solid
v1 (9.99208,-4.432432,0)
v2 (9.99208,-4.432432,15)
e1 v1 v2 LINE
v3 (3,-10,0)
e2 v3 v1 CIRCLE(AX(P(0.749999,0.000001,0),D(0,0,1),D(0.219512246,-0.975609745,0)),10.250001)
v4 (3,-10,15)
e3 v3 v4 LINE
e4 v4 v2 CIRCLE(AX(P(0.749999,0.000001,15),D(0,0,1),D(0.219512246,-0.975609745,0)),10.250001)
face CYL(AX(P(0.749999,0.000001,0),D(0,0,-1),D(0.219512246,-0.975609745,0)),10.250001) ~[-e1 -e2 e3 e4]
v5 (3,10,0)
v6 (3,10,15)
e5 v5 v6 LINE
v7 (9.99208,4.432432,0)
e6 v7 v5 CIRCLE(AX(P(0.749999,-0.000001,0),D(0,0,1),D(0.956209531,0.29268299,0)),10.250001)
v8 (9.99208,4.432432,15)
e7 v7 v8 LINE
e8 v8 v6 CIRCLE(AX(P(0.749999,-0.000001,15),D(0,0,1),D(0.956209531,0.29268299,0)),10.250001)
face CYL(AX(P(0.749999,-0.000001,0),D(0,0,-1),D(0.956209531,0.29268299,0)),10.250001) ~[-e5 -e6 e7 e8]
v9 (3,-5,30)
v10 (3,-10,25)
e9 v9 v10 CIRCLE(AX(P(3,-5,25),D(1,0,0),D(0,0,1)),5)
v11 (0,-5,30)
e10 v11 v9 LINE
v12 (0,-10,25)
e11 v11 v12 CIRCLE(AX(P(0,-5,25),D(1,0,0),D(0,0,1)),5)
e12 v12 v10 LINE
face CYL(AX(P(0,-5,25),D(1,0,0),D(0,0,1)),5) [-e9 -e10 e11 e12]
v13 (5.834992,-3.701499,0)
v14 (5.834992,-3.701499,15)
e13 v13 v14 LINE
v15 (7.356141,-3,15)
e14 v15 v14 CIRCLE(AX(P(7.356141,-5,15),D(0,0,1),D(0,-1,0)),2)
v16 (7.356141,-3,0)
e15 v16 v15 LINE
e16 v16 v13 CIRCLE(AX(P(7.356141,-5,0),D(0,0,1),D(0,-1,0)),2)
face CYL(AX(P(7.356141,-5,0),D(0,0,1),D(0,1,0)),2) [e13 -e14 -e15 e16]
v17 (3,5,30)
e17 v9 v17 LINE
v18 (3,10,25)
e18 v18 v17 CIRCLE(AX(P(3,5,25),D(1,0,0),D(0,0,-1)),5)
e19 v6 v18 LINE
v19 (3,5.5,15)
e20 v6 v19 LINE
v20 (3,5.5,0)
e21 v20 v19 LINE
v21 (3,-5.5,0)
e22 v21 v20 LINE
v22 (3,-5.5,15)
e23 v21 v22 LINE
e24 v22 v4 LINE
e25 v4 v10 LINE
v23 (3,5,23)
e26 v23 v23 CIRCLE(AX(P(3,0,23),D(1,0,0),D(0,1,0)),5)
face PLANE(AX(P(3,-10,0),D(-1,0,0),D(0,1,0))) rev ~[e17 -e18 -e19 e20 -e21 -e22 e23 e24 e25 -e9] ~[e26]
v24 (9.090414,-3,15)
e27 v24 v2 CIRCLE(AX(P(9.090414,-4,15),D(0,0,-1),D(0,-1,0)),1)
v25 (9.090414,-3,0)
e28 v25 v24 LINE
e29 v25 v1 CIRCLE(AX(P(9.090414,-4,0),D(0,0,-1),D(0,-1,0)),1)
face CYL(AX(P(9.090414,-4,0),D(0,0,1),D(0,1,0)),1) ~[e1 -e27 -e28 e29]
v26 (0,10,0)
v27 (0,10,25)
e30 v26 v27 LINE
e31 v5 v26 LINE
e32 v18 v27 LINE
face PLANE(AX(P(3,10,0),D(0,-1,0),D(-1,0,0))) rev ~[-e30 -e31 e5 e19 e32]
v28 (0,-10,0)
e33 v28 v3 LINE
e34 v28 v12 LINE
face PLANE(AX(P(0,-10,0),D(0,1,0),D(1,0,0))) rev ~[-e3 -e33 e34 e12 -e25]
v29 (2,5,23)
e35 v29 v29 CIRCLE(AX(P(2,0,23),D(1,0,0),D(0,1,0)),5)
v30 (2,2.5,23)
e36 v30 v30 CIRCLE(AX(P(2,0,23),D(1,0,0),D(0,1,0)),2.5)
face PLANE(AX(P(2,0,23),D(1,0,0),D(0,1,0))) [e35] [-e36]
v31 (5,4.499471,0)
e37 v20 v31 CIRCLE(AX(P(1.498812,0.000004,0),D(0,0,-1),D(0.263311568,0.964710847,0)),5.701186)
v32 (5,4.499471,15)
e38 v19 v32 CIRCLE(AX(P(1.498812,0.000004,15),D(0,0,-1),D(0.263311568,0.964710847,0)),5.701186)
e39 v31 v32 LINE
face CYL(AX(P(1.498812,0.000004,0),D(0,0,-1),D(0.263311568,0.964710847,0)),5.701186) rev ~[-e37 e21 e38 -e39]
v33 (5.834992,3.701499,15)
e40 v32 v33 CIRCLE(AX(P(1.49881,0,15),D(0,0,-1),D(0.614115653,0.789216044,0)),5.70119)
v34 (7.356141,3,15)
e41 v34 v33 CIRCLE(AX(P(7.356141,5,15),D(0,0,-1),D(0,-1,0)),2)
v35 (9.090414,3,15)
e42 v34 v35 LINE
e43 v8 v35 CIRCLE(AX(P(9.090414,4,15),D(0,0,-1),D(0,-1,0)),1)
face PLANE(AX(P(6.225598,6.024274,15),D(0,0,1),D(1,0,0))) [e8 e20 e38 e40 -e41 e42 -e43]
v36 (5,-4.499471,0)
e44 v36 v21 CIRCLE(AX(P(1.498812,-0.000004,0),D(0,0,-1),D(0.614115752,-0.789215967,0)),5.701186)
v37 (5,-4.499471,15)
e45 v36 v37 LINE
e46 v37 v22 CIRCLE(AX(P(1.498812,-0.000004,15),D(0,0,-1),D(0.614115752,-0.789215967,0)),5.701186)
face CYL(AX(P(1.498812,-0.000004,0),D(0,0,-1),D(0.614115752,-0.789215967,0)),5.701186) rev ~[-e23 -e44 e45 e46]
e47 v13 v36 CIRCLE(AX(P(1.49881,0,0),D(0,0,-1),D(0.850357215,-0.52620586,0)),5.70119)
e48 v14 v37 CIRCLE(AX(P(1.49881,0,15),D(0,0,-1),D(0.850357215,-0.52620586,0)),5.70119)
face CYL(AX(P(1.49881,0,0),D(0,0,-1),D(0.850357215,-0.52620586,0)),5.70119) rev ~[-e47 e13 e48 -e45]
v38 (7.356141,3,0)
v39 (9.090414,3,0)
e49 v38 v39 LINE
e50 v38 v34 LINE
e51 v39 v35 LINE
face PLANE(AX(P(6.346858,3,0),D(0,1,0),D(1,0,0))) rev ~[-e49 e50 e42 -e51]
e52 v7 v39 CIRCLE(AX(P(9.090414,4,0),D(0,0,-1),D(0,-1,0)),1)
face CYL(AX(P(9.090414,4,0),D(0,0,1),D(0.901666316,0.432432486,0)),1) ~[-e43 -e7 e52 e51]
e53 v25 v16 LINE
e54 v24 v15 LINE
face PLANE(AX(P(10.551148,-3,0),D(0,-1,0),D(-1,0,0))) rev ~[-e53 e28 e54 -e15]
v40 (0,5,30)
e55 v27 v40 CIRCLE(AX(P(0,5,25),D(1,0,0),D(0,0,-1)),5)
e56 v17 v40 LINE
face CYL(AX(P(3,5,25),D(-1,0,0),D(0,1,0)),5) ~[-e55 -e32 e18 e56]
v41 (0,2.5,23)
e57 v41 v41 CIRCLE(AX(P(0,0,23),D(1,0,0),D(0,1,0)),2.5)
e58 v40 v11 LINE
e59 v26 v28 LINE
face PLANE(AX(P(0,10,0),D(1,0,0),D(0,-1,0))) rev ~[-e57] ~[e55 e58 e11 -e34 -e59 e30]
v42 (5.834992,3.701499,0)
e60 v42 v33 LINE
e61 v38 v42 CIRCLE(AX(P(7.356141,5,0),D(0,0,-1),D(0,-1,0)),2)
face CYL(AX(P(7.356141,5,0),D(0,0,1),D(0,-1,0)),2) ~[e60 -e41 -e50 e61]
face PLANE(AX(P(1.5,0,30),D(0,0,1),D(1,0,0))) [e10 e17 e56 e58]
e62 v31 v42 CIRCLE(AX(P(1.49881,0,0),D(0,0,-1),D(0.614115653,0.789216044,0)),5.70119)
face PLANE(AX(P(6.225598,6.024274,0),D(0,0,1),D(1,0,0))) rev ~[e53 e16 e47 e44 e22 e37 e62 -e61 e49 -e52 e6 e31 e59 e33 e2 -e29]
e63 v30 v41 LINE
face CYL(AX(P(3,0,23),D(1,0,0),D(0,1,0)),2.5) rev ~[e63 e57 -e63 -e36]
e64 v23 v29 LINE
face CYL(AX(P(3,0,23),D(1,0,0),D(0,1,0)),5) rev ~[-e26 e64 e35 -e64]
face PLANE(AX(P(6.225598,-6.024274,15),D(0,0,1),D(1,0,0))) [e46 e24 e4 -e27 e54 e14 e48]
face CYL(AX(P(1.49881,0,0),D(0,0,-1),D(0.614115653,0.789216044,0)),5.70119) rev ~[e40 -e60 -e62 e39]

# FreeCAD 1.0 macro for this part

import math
import FreeCAD as App
import Part
import Sketcher
from FreeCAD import Vector
Q = App.Units.Quantity


def edges_at(feature, points):
    """Names of the edges that pass closest to the given points."""
    edges = feature.Shape.Edges
    near = lambda p: min(range(len(edges)), key=lambda i: edges[i].distToShape(Part.Vertex(*p))[0])
    return sorted({f"Edge{near(p) + 1}" for p in points})


def add_polygon(sketch, points):
    """Adds a closed chain of lines whose ends are joined by coincident constraints."""
    first, n = sketch.GeometryCount, len(points)
    for a, b in zip(points, points[1:] + points[:1]):
        sketch.addGeometry(Part.LineSegment(App.Vector(*a, 0), App.Vector(*b, 0)), False)
    for i in range(n):
        sketch.addConstraint(Sketcher.Constraint("Coincident", first + i, 2, first + (i + 1) % n, 1))

doc = App.newDocument("Part")
body = doc.addObject("PartDesign::Body", "Body")

# Sketch on XY plane
sketch1 = body.newObject("Sketcher::SketchObject", "Sketch")
sketch1.AttachmentSupport = (doc.getObject("XY_Plane"), [""])
sketch1.MapMode = "FlatFace"
add_polygon(sketch1, [(3, 10), (0, 10), (0, -10), (3, -10)])  # lines 0-3
sketch1.addConstraint(Sketcher.Constraint("Horizontal", 0))
sketch1.addConstraint(Sketcher.Constraint("Vertical", 1))
sketch1.addConstraint(Sketcher.Constraint("Horizontal", 2))
sketch1.addConstraint(Sketcher.Constraint("Vertical", 3))
sketch1.addConstraint(Sketcher.Constraint("Symmetric", 0, 2, 1, 2, -1, 1))
sketch1.addConstraint(Sketcher.Constraint("DistanceX", 0, 2, 0, 1, Q("3 mm")))
sketch1.addConstraint(Sketcher.Constraint("DistanceY", 1, 2, 1, 1, Q("20 mm")))
pad1 = body.newObject("PartDesign::Pad", "Pad")
pad1.Profile = sketch1
pad1.Length = 30

# Sketch on XY plane
sketch2 = body.newObject("Sketcher::SketchObject", "Sketch001")
sketch2.AttachmentSupport = (doc.getObject("XY_Plane"), [""])
sketch2.MapMode = "FlatFace"
sketch2.addGeometry(Part.ArcOfCircle(Part.Circle(Vector(0.7, 0, 0), Vector(0, 0, 1), 10.3), math.radians(17), math.radians(77)), False)
sketch2.addGeometry(Part.LineSegment(Vector(3, 10, 0), Vector(3, 5.5, 0)), False)
sketch2.addGeometry(Part.ArcOfCircle(Part.Circle(Vector(1.5, 0, 0), Vector(0, 0, 1), 5.7), math.radians(52), math.radians(75)), False)
sketch2.addGeometry(Part.ArcOfCircle(Part.Circle(Vector(1.5, 0, 0), Vector(0, 0, 1), 5.7), math.radians(32), math.radians(52)), False)
sketch2.addGeometry(Part.LineSegment(Vector(6.3, 3, 0), Vector(10.6, 3, 0)), False)
sketch2.addGeometry(Part.LineSegment(Vector(3, -5.5, 0), Vector(3, -10, 0)), False)
sketch2.addGeometry(Part.ArcOfCircle(Part.Circle(Vector(0.7, 0, 0), Vector(0, 0, 1), 10.3), math.radians(-77), math.radians(-17)), False)
sketch2.addGeometry(Part.LineSegment(Vector(10.6, -3, 0), Vector(6.3, -3, 0)), False)
sketch2.addGeometry(Part.ArcOfCircle(Part.Circle(Vector(1.5, 0, 0), Vector(0, 0, 1), 5.7), math.radians(-52), math.radians(-32)), False)
sketch2.addGeometry(Part.ArcOfCircle(Part.Circle(Vector(1.5, 0, 0), Vector(0, 0, 1), 5.7), math.radians(-75), math.radians(-52)), False)
sketch2.addConstraint(Sketcher.Constraint("Coincident", 0, 2, 1, 1))
sketch2.addConstraint(Sketcher.Constraint("Coincident", 1, 2, 2, 2))
sketch2.addConstraint(Sketcher.Constraint("Tangent", 2, 1, 3, 2))
sketch2.addConstraint(Sketcher.Constraint("Coincident", 3, 1, 4, 1))
sketch2.addConstraint(Sketcher.Constraint("Coincident", 4, 2, 0, 1))
sketch2.addConstraint(Sketcher.Constraint("Coincident", 5, 2, 6, 1))
sketch2.addConstraint(Sketcher.Constraint("Coincident", 6, 2, 7, 1))
sketch2.addConstraint(Sketcher.Constraint("Coincident", 7, 2, 8, 2))
sketch2.addConstraint(Sketcher.Constraint("Tangent", 8, 1, 9, 2))
sketch2.addConstraint(Sketcher.Constraint("Coincident", 9, 1, 5, 1))
sketch2.addConstraint(Sketcher.Constraint("Vertical", 1))
sketch2.addConstraint(Sketcher.Constraint("Horizontal", 4))
sketch2.addConstraint(Sketcher.Constraint("Vertical", 5))
sketch2.addConstraint(Sketcher.Constraint("Horizontal", 7))
sketch2.addConstraint(Sketcher.Constraint("Coincident", 6, 3, 0, 3))
sketch2.addConstraint(Sketcher.Constraint("Coincident", 8, 3, 2, 3))
sketch2.addConstraint(Sketcher.Constraint("Equal", 0, 6))
sketch2.addConstraint(Sketcher.Constraint("Equal", 3, 8))
sketch2.addConstraint(Sketcher.Constraint("Equal", 2, 9))
sketch2.addConstraint(Sketcher.Constraint("Symmetric", 0, 2, 5, 2, -1))
sketch2.addConstraint(Sketcher.Constraint("Symmetric", 3, 1, 7, 2, -1))
sketch2.addConstraint(Sketcher.Constraint("Symmetric", 2, 1, 8, 1, -1))
sketch2.addConstraint(Sketcher.Constraint("Radius", 0, Q("10.250001 mm")))
sketch2.addConstraint(Sketcher.Constraint("DistanceY", 1, 2, 1, 1, Q("4.5 mm")))
sketch2.addConstraint(Sketcher.Constraint("DistanceX", -1, 1, 0, 2, Q("3 mm")))
sketch2.addConstraint(Sketcher.Constraint("DistanceY", -1, 1, 0, 2, Q("10 mm")))
sketch2.addConstraint(Sketcher.Constraint("DistanceX", -1, 1, 2, 1, Q("5 mm")))
sketch2.addConstraint(Sketcher.Constraint("DistanceY", -1, 1, 3, 1, Q("3 mm")))
sketch2.addConstraint(Sketcher.Constraint("Radius", 3, Q("5.70119 mm")))
pad2 = body.newObject("PartDesign::Pad", "Pad001")
pad2.Profile = sketch2
pad2.Length = 15

# Sketch on YZ plane
sketch3 = body.newObject("Sketcher::SketchObject", "Sketch002")
sketch3.AttachmentSupport = (doc.getObject("YZ_Plane"), [""])
sketch3.MapMode = "FlatFace"
sketch3.AttachmentOffset = App.Placement(Vector(0, 0, 3), App.Rotation())
sketch3.addGeometry(Part.Circle(Vector(0, 23, 0), Vector(0, 0, 1), 2.5), False)
sketch3.addConstraint(Sketcher.Constraint("PointOnObject", 0, 3, -2))
sketch3.addConstraint(Sketcher.Constraint("Diameter", 0, Q("5 mm")))
sketch3.addConstraint(Sketcher.Constraint("DistanceY", -1, 1, 0, 3, Q("23 mm")))
pocket1 = body.newObject("PartDesign::Pocket", "Pocket")
pocket1.Profile = sketch3
pocket1.Length = 25
doc.recompute()

fillet = body.newObject("PartDesign::Fillet", "Fillet")
fillet.Base = (pocket1, edges_at(pocket1, [(1.5, -10, 30), (1.5, 10, 30)]))
fillet.Radius = 5

# Sketch on YZ plane
sketch4 = body.newObject("Sketcher::SketchObject", "Sketch003")
sketch4.AttachmentSupport = (doc.getObject("YZ_Plane"), [""])
sketch4.MapMode = "FlatFace"
sketch4.AttachmentOffset = App.Placement(Vector(0, 0, 3), App.Rotation())
sketch4.addGeometry(Part.Circle(Vector(0, 23, 0), Vector(0, 0, 1), 5), False)
sketch4.addGeometry(Part.Circle(Vector(0, 23, 0), Vector(0, 0, 1), 2.5), False)
sketch4.addConstraint(Sketcher.Constraint("Coincident", 1, 3, 0, 3))
sketch4.addConstraint(Sketcher.Constraint("PointOnObject", 0, 3, -2))
sketch4.addConstraint(Sketcher.Constraint("Diameter", 0, Q("10 mm")))
sketch4.addConstraint(Sketcher.Constraint("Diameter", 1, Q("5 mm")))
sketch4.addConstraint(Sketcher.Constraint("DistanceY", -1, 1, 0, 3, Q("23 mm")))
pocket2 = body.newObject("PartDesign::Pocket", "Pocket001")
pocket2.Profile = sketch4
pocket2.Length = 1
doc.recompute()

fillet2 = body.newObject("PartDesign::Fillet", "Fillet001")
fillet2.Base = (pocket2, edges_at(pocket2, [(6.347, -3, 7.5), (6.347, 3, 7.5)]))
fillet2.Radius = 2
doc.recompute()

fillet3 = body.newObject("PartDesign::Fillet", "Fillet002")
fillet3.Base = (fillet2, edges_at(fillet2, [(10.551, -3, 7.5), (10.551, 3, 7.5)]))
fillet3.Radius = 1

doc.recompute()
